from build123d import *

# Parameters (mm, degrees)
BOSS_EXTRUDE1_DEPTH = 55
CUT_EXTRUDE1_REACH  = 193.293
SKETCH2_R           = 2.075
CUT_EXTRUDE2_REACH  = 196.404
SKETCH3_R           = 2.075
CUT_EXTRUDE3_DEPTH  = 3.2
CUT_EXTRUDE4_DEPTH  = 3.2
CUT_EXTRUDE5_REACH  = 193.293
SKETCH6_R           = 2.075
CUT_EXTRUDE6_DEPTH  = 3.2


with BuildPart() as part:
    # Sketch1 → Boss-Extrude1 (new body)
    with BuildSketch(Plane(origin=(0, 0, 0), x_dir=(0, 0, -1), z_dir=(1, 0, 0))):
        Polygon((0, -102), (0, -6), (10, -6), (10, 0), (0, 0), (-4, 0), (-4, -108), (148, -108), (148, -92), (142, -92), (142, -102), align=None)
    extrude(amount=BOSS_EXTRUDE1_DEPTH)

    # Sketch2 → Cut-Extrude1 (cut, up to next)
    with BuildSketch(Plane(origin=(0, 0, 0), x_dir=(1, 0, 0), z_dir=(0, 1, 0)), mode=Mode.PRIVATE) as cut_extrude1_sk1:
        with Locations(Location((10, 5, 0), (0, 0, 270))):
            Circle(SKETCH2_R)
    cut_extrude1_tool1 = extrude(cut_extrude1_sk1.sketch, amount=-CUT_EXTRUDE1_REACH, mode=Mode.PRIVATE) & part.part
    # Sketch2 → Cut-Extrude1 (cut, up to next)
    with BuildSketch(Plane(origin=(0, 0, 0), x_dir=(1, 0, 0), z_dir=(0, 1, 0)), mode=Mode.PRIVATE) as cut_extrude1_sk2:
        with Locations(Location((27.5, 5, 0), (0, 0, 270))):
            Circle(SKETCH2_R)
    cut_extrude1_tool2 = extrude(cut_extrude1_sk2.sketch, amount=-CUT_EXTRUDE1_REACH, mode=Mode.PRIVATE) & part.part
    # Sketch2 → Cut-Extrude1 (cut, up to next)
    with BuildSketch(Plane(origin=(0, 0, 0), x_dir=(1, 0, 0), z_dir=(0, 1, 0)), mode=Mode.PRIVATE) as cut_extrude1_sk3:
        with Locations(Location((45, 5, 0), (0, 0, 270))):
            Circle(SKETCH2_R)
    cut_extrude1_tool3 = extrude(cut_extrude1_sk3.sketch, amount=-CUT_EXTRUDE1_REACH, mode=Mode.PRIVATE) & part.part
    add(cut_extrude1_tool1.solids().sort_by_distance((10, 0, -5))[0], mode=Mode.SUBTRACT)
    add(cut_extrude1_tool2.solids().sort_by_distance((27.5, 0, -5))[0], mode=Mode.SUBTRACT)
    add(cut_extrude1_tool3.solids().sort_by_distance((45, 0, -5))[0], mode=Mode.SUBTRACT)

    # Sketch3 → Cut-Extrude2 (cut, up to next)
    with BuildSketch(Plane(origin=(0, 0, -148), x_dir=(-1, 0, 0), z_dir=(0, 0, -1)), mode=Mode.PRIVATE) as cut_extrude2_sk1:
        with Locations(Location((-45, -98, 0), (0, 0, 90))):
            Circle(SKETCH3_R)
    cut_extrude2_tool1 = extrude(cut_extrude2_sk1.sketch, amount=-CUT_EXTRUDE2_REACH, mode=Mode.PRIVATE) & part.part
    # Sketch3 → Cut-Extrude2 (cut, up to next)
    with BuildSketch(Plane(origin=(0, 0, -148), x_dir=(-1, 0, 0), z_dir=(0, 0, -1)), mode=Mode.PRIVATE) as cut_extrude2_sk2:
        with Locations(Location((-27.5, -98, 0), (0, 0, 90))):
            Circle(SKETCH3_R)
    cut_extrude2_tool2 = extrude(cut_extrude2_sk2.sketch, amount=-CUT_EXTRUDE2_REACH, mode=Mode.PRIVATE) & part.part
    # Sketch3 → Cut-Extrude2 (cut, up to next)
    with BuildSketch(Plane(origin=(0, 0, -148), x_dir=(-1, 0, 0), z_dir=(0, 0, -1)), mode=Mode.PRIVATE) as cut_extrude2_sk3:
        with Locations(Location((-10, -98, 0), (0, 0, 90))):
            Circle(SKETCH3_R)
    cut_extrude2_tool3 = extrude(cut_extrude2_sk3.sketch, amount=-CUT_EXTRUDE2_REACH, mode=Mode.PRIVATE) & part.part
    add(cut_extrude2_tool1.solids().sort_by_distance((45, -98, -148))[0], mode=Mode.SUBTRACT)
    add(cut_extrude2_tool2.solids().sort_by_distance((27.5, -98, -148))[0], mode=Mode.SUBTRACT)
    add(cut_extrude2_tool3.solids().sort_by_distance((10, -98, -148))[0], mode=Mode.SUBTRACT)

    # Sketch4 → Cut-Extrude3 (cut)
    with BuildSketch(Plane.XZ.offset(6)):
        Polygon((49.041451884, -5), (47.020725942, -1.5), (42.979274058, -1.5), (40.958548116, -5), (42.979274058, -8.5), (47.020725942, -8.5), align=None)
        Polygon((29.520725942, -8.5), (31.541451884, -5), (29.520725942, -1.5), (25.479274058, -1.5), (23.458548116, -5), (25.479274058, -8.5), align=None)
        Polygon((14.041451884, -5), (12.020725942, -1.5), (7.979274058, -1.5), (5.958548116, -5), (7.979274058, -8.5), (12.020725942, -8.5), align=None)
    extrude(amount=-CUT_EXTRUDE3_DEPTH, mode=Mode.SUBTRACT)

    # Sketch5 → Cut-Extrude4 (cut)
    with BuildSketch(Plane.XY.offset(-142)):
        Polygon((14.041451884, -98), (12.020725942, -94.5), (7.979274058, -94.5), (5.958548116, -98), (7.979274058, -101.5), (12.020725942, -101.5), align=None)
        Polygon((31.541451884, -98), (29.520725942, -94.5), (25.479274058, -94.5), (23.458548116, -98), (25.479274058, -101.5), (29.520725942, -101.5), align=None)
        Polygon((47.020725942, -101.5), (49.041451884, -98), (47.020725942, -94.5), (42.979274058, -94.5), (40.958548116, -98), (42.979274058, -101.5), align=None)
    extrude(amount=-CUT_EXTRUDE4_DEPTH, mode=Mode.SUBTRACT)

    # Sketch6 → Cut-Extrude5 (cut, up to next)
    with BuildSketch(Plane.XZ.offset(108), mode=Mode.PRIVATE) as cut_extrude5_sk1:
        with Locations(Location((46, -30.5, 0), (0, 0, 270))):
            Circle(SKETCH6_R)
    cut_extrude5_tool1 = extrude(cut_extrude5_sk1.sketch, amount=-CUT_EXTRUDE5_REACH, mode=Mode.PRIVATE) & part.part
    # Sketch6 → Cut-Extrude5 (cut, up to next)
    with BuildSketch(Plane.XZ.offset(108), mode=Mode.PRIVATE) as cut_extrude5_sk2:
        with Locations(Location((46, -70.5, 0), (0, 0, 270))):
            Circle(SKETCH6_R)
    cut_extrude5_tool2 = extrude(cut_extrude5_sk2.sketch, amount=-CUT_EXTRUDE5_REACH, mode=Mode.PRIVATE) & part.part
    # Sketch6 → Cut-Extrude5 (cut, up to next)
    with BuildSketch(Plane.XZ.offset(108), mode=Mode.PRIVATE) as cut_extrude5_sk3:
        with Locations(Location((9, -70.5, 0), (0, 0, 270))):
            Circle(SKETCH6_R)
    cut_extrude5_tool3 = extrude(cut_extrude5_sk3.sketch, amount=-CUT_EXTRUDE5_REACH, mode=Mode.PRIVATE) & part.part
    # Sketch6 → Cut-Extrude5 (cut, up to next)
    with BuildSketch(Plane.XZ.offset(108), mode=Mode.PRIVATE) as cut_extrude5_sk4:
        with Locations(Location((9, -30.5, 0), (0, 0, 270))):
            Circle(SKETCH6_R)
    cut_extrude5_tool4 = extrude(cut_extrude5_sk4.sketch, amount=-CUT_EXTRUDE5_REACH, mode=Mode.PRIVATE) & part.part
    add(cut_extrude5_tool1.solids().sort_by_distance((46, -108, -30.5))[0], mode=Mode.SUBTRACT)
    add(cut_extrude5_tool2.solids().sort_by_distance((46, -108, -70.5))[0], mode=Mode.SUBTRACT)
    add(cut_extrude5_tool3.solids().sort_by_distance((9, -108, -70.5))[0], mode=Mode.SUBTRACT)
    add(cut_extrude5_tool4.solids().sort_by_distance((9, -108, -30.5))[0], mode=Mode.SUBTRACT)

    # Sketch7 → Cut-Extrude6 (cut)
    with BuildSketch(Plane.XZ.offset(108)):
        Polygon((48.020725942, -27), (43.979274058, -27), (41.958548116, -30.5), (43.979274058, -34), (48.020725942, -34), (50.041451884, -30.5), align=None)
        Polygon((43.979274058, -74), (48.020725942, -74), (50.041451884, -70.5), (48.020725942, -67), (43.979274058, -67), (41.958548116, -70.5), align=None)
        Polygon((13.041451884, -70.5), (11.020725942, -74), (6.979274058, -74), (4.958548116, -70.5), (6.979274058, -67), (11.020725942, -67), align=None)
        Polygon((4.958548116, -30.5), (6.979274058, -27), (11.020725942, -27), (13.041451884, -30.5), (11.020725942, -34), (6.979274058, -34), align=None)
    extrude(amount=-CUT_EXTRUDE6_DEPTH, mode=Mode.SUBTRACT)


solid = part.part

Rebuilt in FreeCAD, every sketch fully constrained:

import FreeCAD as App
import Part
import Sketcher
from FreeCAD import Vector
Q = App.Units.Quantity


def add_polygon(sketch, points):
    """Adds a closed chain of lines whose ends are joined by coincident constraints."""
    first, n = sketch.GeometryCount, len(points)
    for a, b in zip(points, points[1:] + points[:1]):
        sketch.addGeometry(Part.LineSegment(App.Vector(*a, 0), App.Vector(*b, 0)), False)
    for i in range(n):
        sketch.addConstraint(Sketcher.Constraint("Coincident", first + i, 2, first + (i + 1) % n, 1))

doc = App.newDocument("Part")
params = doc.addObject("Spreadsheet::Sheet", "Params")
for row, (alias, value) in enumerate([
    ("sketch1_width", "96 mm"),
    ("sketch1_width2", "6 mm"),
    ("sketch1_width3", "108 mm"),
    ("sketch1_width4", "16 mm"),
    ("sketch1_height", "14 mm"),
    ("pad1_length", "55 mm"),
    ("sketch2_diameter", "4.15 mm"),
    ("sketch3_diameter", "4.15 mm"),
    ("sketch4_diameter", "4.15 mm"),
    ("sketch5_diameter", "4.15 mm"),
    ("sketch6_diameter", "4.15 mm"),
    ("sketch7_diameter", "4.15 mm"),
    ("pocket7_length", "3.2 mm"),
    ("pocket8_length", "3.2 mm"),
    ("sketch10_diameter", "4.15 mm"),
    ("sketch11_diameter", "4.15 mm"),
    ("sketch12_diameter", "4.15 mm"),
    ("sketch13_diameter", "4.15 mm"),
    ("pocket13_length", "3.2 mm"),
], start=1):
    params.set(f"A{row}", alias)
    params.set(f"B{row}", "=" + value)
    params.setAlias(f"B{row}", alias)

body = doc.addObject("PartDesign::Body", "Body")

sketch1 = body.newObject("Sketcher::SketchObject", "Sketch")
sketch1.AttachmentSupport = (doc.getObject("YZ_Plane"), [""])
sketch1.MapMode = "FlatFace"
add_polygon(sketch1, [(-102, 0), (-6, 0), (-6, -10), (0, -10), (0, 4), (-108, 4), (-108, -148), (-92, -148), (-92, -142), (-102, -142)])
sketch1.addConstraint([
    Sketcher.Constraint("Horizontal", 0),
    Sketcher.Constraint("Vertical", 1),
    Sketcher.Constraint("Horizontal", 2),
    Sketcher.Constraint("Vertical", 3),
    Sketcher.Constraint("Horizontal", 4),
    Sketcher.Constraint("Vertical", 5),
    Sketcher.Constraint("Horizontal", 6),
    Sketcher.Constraint("Vertical", 7),
    Sketcher.Constraint("Horizontal", 8),
    Sketcher.Constraint("Vertical", 9),
    Sketcher.Constraint("PointOnObject", 0, 2, -1),
    Sketcher.Constraint("PointOnObject", 2, 2, -2),
    Sketcher.Constraint("Equal", 8, 1),
    Sketcher.Constraint("Equal", 2, 7),
    Sketcher.Constraint("DistanceX", 0, 1, 0, 2, 96.0),
    Sketcher.Constraint("DistanceX", 2, 1, 2, 2, 6.0),
    Sketcher.Constraint("DistanceX", 4, 2, 4, 1, 108.0),
    Sketcher.Constraint("DistanceX", 6, 1, 6, 2, 16.0),
    Sketcher.Constraint("DistanceY", 3, 1, 3, 2, 14.0),
    Sketcher.Constraint("DistanceY", 5, 2, 5, 1, 152.0),
])
sketch1.setExpression("Constraints[24]", "Params.sketch1_width")
sketch1.setExpression("Constraints[25]", "Params.sketch1_width2")
sketch1.setExpression("Constraints[26]", "Params.sketch1_width3")
sketch1.setExpression("Constraints[27]", "Params.sketch1_width4")
sketch1.setExpression("Constraints[28]", "Params.sketch1_height")
pad1 = body.newObject("PartDesign::Pad", "Pad")
pad1.Profile = sketch1
pad1.setExpression("Length", "Params.pad1_length")

sketch2 = body.newObject("Sketcher::SketchObject", "Sketch001")
sketch2.AttachmentSupport = (doc.getObject("XZ_Plane"), [""])
sketch2.MapMode = "FlatFace"
sketch2.addGeometry(Part.Circle(Vector(10, -5, 0), Vector(0, 0, 1), 2.1), False)
sketch2.addConstraint([
    Sketcher.Constraint("Diameter", 0, 4.15),
    Sketcher.Constraint("DistanceX", -1, 1, 0, 3, 10.0),
    Sketcher.Constraint("DistanceY", 0, 3, -1, 1, 5.0),
])
sketch2.setExpression("Constraints[0]", "Params.sketch2_diameter")
pocket1 = body.newObject("PartDesign::Pocket", "Pocket")
pocket1.Profile = sketch2
pocket1.Type = "UpToFirst"
pocket1.Reversed = True

sketch3 = body.newObject("Sketcher::SketchObject", "Sketch002")
sketch3.AttachmentSupport = (doc.getObject("XZ_Plane"), [""])
sketch3.MapMode = "FlatFace"
sketch3.addGeometry(Part.Circle(Vector(27.5, -5, 0), Vector(0, 0, 1), 2.1), False)
sketch3.addConstraint([
    Sketcher.Constraint("Diameter", 0, 4.15),
    Sketcher.Constraint("DistanceY", 0, 3, -1, 1, 5.0),
    Sketcher.Constraint("DistanceX", -1, 1, 0, 3, 27.5),
])
sketch3.setExpression("Constraints[0]", "Params.sketch3_diameter")
pocket2 = body.newObject("PartDesign::Pocket", "Pocket001")
pocket2.Profile = sketch3
pocket2.Type = "UpToFirst"
pocket2.Reversed = True

sketch4 = body.newObject("Sketcher::SketchObject", "Sketch003")
sketch4.AttachmentSupport = (doc.getObject("XZ_Plane"), [""])
sketch4.MapMode = "FlatFace"
sketch4.addGeometry(Part.Circle(Vector(45, -5, 0), Vector(0, 0, 1), 2.1), False)
sketch4.addConstraint([
    Sketcher.Constraint("Diameter", 0, 4.15),
    Sketcher.Constraint("DistanceX", -1, 1, 0, 3, 45.0),
    Sketcher.Constraint("DistanceY", 0, 3, -1, 1, 5.0),
])
sketch4.setExpression("Constraints[0]", "Params.sketch4_diameter")
pocket3 = body.newObject("PartDesign::Pocket", "Pocket002")
pocket3.Profile = sketch4
pocket3.Type = "UpToFirst"
pocket3.Reversed = True

sketch5 = body.newObject("Sketcher::SketchObject", "Sketch004")
sketch5.AttachmentSupport = (doc.getObject("XY_Plane"), [""])
sketch5.MapMode = "FlatFace"
sketch5.AttachmentOffset = App.Placement(Vector(0, 0, -148), App.Rotation())
sketch5.addGeometry(Part.Circle(Vector(45, -98, 0), Vector(0, 0, 1), 2.1), False)
sketch5.addConstraint([
    Sketcher.Constraint("Diameter", 0, 4.15),
    Sketcher.Constraint("DistanceX", -1, 1, 0, 3, 45.0),
    Sketcher.Constraint("DistanceY", 0, 3, -1, 1, 98.0),
])
sketch5.setExpression("Constraints[0]", "Params.sketch5_diameter")
pocket4 = body.newObject("PartDesign::Pocket", "Pocket003")
pocket4.Profile = sketch5
pocket4.Type = "UpToFirst"
pocket4.Reversed = True

sketch6 = body.newObject("Sketcher::SketchObject", "Sketch005")
sketch6.AttachmentSupport = (doc.getObject("XY_Plane"), [""])
sketch6.MapMode = "FlatFace"
sketch6.AttachmentOffset = App.Placement(Vector(0, 0, -148), App.Rotation())
sketch6.addGeometry(Part.Circle(Vector(27.5, -98, 0), Vector(0, 0, 1), 2.1), False)
sketch6.addConstraint([
    Sketcher.Constraint("Diameter", 0, 4.15),
    Sketcher.Constraint("DistanceY", 0, 3, -1, 1, 98.0),
    Sketcher.Constraint("DistanceX", -1, 1, 0, 3, 27.5),
])
sketch6.setExpression("Constraints[0]", "Params.sketch6_diameter")
pocket5 = body.newObject("PartDesign::Pocket", "Pocket004")
pocket5.Profile = sketch6
pocket5.Type = "UpToFirst"
pocket5.Reversed = True

sketch7 = body.newObject("Sketcher::SketchObject", "Sketch006")
sketch7.AttachmentSupport = (doc.getObject("XY_Plane"), [""])
sketch7.MapMode = "FlatFace"
sketch7.AttachmentOffset = App.Placement(Vector(0, 0, -148), App.Rotation())
sketch7.addGeometry(Part.Circle(Vector(10, -98, 0), Vector(0, 0, 1), 2.1), False)
sketch7.addConstraint([
    Sketcher.Constraint("Diameter", 0, 4.15),
    Sketcher.Constraint("DistanceX", -1, 1, 0, 3, 10.0),
    Sketcher.Constraint("DistanceY", 0, 3, -1, 1, 98.0),
])
sketch7.setExpression("Constraints[0]", "Params.sketch7_diameter")
pocket6 = body.newObject("PartDesign::Pocket", "Pocket005")
pocket6.Profile = sketch7
pocket6.Type = "UpToFirst"
pocket6.Reversed = True

sketch8 = body.newObject("Sketcher::SketchObject", "Sketch007")
sketch8.AttachmentSupport = (doc.getObject("XZ_Plane"), [""])
sketch8.MapMode = "FlatFace"
sketch8.AttachmentOffset = App.Placement(Vector(0, 0, 6), App.Rotation())
add_polygon(sketch8, [(49, -5), (47, -1.5), (43, -1.5), (41, -5), (43, -8.5), (47, -8.5)])
add_polygon(sketch8, [(29.5, -8.5), (31.5, -5), (29.5, -1.5), (25.5, -1.5), (23.5, -5), (25.5, -8.5)])
add_polygon(sketch8, [(14, -5), (12, -1.5), (8, -1.5), (6, -5), (8, -8.5), (12, -8.5)])
sketch8.addConstraint([
    Sketcher.Constraint("Horizontal", 1),
    Sketcher.Constraint("Horizontal", 4),
    Sketcher.Constraint("Horizontal", 8),
    Sketcher.Constraint("Horizontal", 11),
    Sketcher.Constraint("Horizontal", 13),
    Sketcher.Constraint("Horizontal", 16),
    Sketcher.Constraint("Parallel", 0, 3),
    Sketcher.Constraint("Parallel", 2, 5),
    Sketcher.Constraint("Parallel", 5, 6),
    Sketcher.Constraint("Parallel", 3, 7),
    Sketcher.Constraint("Parallel", 6, 9),
    Sketcher.Constraint("Parallel", 7, 10),
    Sketcher.Constraint("Parallel", 10, 12),
    Sketcher.Constraint("Parallel", 9, 14),
    Sketcher.Constraint("Parallel", 12, 15),
    Sketcher.Constraint("Parallel", 14, 17),
    Sketcher.Constraint("Horizontal", 2, 2, 5, 2),
    Sketcher.Constraint("Horizontal", 5, 2, 6, 2),
    Sketcher.Constraint("Horizontal", 1, 2, 7, 2),
    Sketcher.Constraint("Horizontal", 6, 2, 9, 2),
    Sketcher.Constraint("Horizontal", 4, 2, 10, 2),
    Sketcher.Constraint("Horizontal", 8, 2, 12, 2),
    Sketcher.Constraint("Horizontal", 9, 2, 14, 2),
    Sketcher.Constraint("Horizontal", 11, 2, 15, 2),
    Sketcher.Constraint("Horizontal", 14, 2, 17, 2),
    Sketcher.Constraint("Vertical", 1, 2, 3, 2),
    Sketcher.Constraint("Vertical", 0, 2, 4, 2),
    Sketcher.Constraint("Equal", 4, 8),
    Sketcher.Constraint("Equal", 11, 13),
    Sketcher.Constraint("Angle", 0, Q("120 deg")),
    Sketcher.Constraint("DistanceY", 2, 2, -1, 1, 5.0),
    Sketcher.Constraint("DistanceY", 3, 2, 1, 2, 7.0),
    Sketcher.Constraint("DistanceX", 7, 2, 0, 2, 17.5),
    Sketcher.Constraint("DistanceX", 12, 2, 7, 2, 17.5),
    Sketcher.Constraint("DistanceX", 1, 2, 1, 1, 4.041452),
    Sketcher.Constraint("DistanceX", -1, 1, 2, 2, 40.958548),
])
pocket7 = body.newObject("PartDesign::Pocket", "Pocket006")
pocket7.Profile = sketch8
pocket7.setExpression("Length", "Params.pocket7_length")

sketch9 = body.newObject("Sketcher::SketchObject", "Sketch008")
sketch9.AttachmentSupport = (doc.getObject("XY_Plane"), [""])
sketch9.MapMode = "FlatFace"
sketch9.AttachmentOffset = App.Placement(Vector(0, 0, -142), App.Rotation())
add_polygon(sketch9, [(14, -98), (12, -94.5), (8, -94.5), (6, -98), (8, -101.5), (12, -101.5)])
add_polygon(sketch9, [(31.5, -98), (29.5, -94.5), (25.5, -94.5), (23.5, -98), (25.5, -101.5), (29.5, -101.5)])
add_polygon(sketch9, [(47, -101.5), (49, -98), (47, -94.5), (43, -94.5), (41, -98), (43, -101.5)])
sketch9.addConstraint([
    Sketcher.Constraint("Horizontal", 1),
    Sketcher.Constraint("Horizontal", 4),
    Sketcher.Constraint("Horizontal", 7),
    Sketcher.Constraint("Horizontal", 10),
    Sketcher.Constraint("Horizontal", 14),
    Sketcher.Constraint("Horizontal", 17),
    Sketcher.Constraint("Parallel", 0, 3),
    Sketcher.Constraint("Parallel", 2, 5),
    Sketcher.Constraint("Parallel", 3, 6),
    Sketcher.Constraint("Parallel", 5, 8),
    Sketcher.Constraint("Parallel", 6, 9),
    Sketcher.Constraint("Parallel", 8, 11),
    Sketcher.Constraint("Parallel", 11, 12),
    Sketcher.Constraint("Parallel", 9, 13),
    Sketcher.Constraint("Parallel", 12, 15),
    Sketcher.Constraint("Parallel", 13, 16),
    Sketcher.Constraint("Horizontal", 2, 2, 5, 2),
    Sketcher.Constraint("Horizontal", 1, 2, 6, 2),
    Sketcher.Constraint("Horizontal", 5, 2, 8, 2),
    Sketcher.Constraint("Horizontal", 4, 2, 9, 2),
    Sketcher.Constraint("Horizontal", 8, 2, 11, 2),
    Sketcher.Constraint("Horizontal", 11, 2, 12, 2),
    Sketcher.Constraint("Horizontal", 7, 2, 13, 2),
    Sketcher.Constraint("Horizontal", 12, 2, 15, 2),
    Sketcher.Constraint("Horizontal", 10, 2, 16, 2),
    Sketcher.Constraint("Vertical", 1, 2, 3, 2),
    Sketcher.Constraint("Vertical", 0, 2, 4, 2),
    Sketcher.Constraint("Equal", 4, 7),
    Sketcher.Constraint("Equal", 10, 14),
    Sketcher.Constraint("Angle", 0, Q("120 deg")),
    Sketcher.Constraint("DistanceY", 2, 2, -1, 1, 98.0),
    Sketcher.Constraint("DistanceY", 3, 2, 1, 2, 7.0),
    Sketcher.Constraint("DistanceX", 0, 2, 6, 2, 17.5),
    Sketcher.Constraint("DistanceX", 11, 2, 12, 2, 17.5),
    Sketcher.Constraint("DistanceX", 1, 2, 1, 1, 4.041452),
    Sketcher.Constraint("DistanceX", -1, 1, 2, 2, 5.958548),
])
pocket8 = body.newObject("PartDesign::Pocket", "Pocket007")
pocket8.Profile = sketch9
pocket8.setExpression("Length", "Params.pocket8_length")

sketch10 = body.newObject("Sketcher::SketchObject", "Sketch009")
sketch10.AttachmentSupport = (doc.getObject("XZ_Plane"), [""])
sketch10.MapMode = "FlatFace"
sketch10.AttachmentOffset = App.Placement(Vector(0, 0, 108), App.Rotation())
sketch10.addGeometry(Part.Circle(Vector(46, -30.5, 0), Vector(0, 0, 1), 2.1), False)
sketch10.addConstraint([
    Sketcher.Constraint("Diameter", 0, 4.15),
    Sketcher.Constraint("DistanceX", -1, 1, 0, 3, 46.0),
    Sketcher.Constraint("DistanceY", 0, 3, -1, 1, 30.5),
])
sketch10.setExpression("Constraints[0]", "Params.sketch10_diameter")
pocket9 = body.newObject("PartDesign::Pocket", "Pocket008")
pocket9.Profile = sketch10
pocket9.Type = "UpToFirst"

sketch11 = body.newObject("Sketcher::SketchObject", "Sketch010")
sketch11.AttachmentSupport = (doc.getObject("XZ_Plane"), [""])
sketch11.MapMode = "FlatFace"
sketch11.AttachmentOffset = App.Placement(Vector(0, 0, 108), App.Rotation())
sketch11.addGeometry(Part.Circle(Vector(46, -70.5, 0), Vector(0, 0, 1), 2.1), False)
sketch11.addConstraint([
    Sketcher.Constraint("Diameter", 0, 4.15),
    Sketcher.Constraint("DistanceX", -1, 1, 0, 3, 46.0),
    Sketcher.Constraint("DistanceY", 0, 3, -1, 1, 70.5),
])
sketch11.setExpression("Constraints[0]", "Params.sketch11_diameter")
pocket10 = body.newObject("PartDesign::Pocket", "Pocket009")
pocket10.Profile = sketch11
pocket10.Type = "UpToFirst"

sketch12 = body.newObject("Sketcher::SketchObject", "Sketch011")
sketch12.AttachmentSupport = (doc.getObject("XZ_Plane"), [""])
sketch12.MapMode = "FlatFace"
sketch12.AttachmentOffset = App.Placement(Vector(0, 0, 108), App.Rotation())
sketch12.addGeometry(Part.Circle(Vector(9, -70.5, 0), Vector(0, 0, 1), 2.1), False)
sketch12.addConstraint([
    Sketcher.Constraint("Diameter", 0, 4.15),
    Sketcher.Constraint("DistanceX", -1, 1, 0, 3, 9.0),
    Sketcher.Constraint("DistanceY", 0, 3, -1, 1, 70.5),
])
sketch12.setExpression("Constraints[0]", "Params.sketch12_diameter")
pocket11 = body.newObject("PartDesign::Pocket", "Pocket010")
pocket11.Profile = sketch12
pocket11.Type = "UpToFirst"

sketch13 = body.newObject("Sketcher::SketchObject", "Sketch012")
sketch13.AttachmentSupport = (doc.getObject("XZ_Plane"), [""])
sketch13.MapMode = "FlatFace"
sketch13.AttachmentOffset = App.Placement(Vector(0, 0, 108), App.Rotation())
sketch13.addGeometry(Part.Circle(Vector(9, -30.5, 0), Vector(0, 0, 1), 2.1), False)
sketch13.addConstraint([
    Sketcher.Constraint("Diameter", 0, 4.15),
    Sketcher.Constraint("DistanceX", -1, 1, 0, 3, 9.0),
    Sketcher.Constraint("DistanceY", 0, 3, -1, 1, 30.5),
])
sketch13.setExpression("Constraints[0]", "Params.sketch13_diameter")
pocket12 = body.newObject("PartDesign::Pocket", "Pocket011")
pocket12.Profile = sketch13
pocket12.Type = "UpToFirst"

sketch14 = body.newObject("Sketcher::SketchObject", "Sketch013")
sketch14.AttachmentSupport = (doc.getObject("XZ_Plane"), [""])
sketch14.MapMode = "FlatFace"
sketch14.AttachmentOffset = App.Placement(Vector(0, 0, 108), App.Rotation())
add_polygon(sketch14, [(48, -27), (44, -27), (42, -30.5), (44, -34), (48, -34), (50, -30.5)])
add_polygon(sketch14, [(44, -74), (48, -74), (50, -70.5), (48, -67), (44, -67), (42, -70.5)])
add_polygon(sketch14, [(11, -74), (13, -70.5), (11, -67), (7, -67), (5, -70.5), (7, -74)])
add_polygon(sketch14, [(7, -27), (5, -30.5), (7, -34), (11, -34), (13, -30.5), (11, -27)])
sketch14.addConstraint([
    Sketcher.Constraint("Horizontal", 0),
    Sketcher.Constraint("Horizontal", 3),
    Sketcher.Constraint("Horizontal", 6),
    Sketcher.Constraint("Horizontal", 9),
    Sketcher.Constraint("Horizontal", 14),
    Sketcher.Constraint("Horizontal", 17),
    Sketcher.Constraint("Horizontal", 20),
    Sketcher.Constraint("Horizontal", 23),
    Sketcher.Constraint("Parallel", 1, 4),
    Sketcher.Constraint("Parallel", 2, 5),
    Sketcher.Constraint("Parallel", 4, 7),
    Sketcher.Constraint("Parallel", 5, 8),
    Sketcher.Constraint("Parallel", 7, 10),
    Sketcher.Constraint("Parallel", 8, 11),
    Sketcher.Constraint("Parallel", 10, 12),
    Sketcher.Constraint("Parallel", 11, 13),
    Sketcher.Constraint("Parallel", 12, 15),
    Sketcher.Constraint("Parallel", 13, 16),
    Sketcher.Constraint("Parallel", 15, 18),
    Sketcher.Constraint("Parallel", 16, 19),
    Sketcher.Constraint("Parallel", 18, 21),
    Sketcher.Constraint("Parallel", 19, 22),
    Sketcher.Constraint("Horizontal", 1, 2, 4, 2),
    Sketcher.Constraint("Horizontal", 7, 2, 10, 2),
    Sketcher.Constraint("Horizontal", 10, 2, 12, 2),
    Sketcher.Constraint("Horizontal", 9, 2, 13, 2),
    Sketcher.Constraint("Horizontal", 12, 2, 15, 2),
    Sketcher.Constraint("Horizontal", 11, 2, 16, 2),
    Sketcher.Constraint("Horizontal", 4, 2, 18, 2),
    Sketcher.Constraint("Horizontal", 3, 2, 19, 2),
    Sketcher.Constraint("Horizontal", 18, 2, 21, 2),
    Sketcher.Constraint("Horizontal", 5, 2, 22, 2),
    Sketcher.Constraint("Vertical", 0, 2, 2, 2),
    Sketcher.Constraint("Vertical", 3, 2, 5, 2),
    Sketcher.Constraint("Vertical", 5, 2, 6, 2),
    Sketcher.Constraint("Vertical", 4, 2, 7, 2),
    Sketcher.Constraint("Vertical", 6, 2, 8, 2),
    Sketcher.Constraint("Vertical", 2, 2, 9, 2),
    Sketcher.Constraint("Vertical", 15, 2, 18, 2),
    Sketcher.Constraint("Vertical", 17, 2, 20, 2),
    Sketcher.Constraint("Equal", 9, 14),
    Sketcher.Constraint("Angle", 1, Q("-120 deg")),
    Sketcher.Constraint("DistanceY", 0, 2, -1, 1, 27.0),
    Sketcher.Constraint("DistanceY", 2, 2, -1, 1, 34.0),
    Sketcher.Constraint("DistanceY", 6, 2, -1, 1, 74.0),
    Sketcher.Constraint("DistanceX", 13, 2, 8, 2, 37.0),
    Sketcher.Constraint("DistanceX", 0, 2, 0, 1, 4.041452),
    Sketcher.Constraint("DistanceX", -1, 1, 1, 2, 41.958548),
])
pocket13 = body.newObject("PartDesign::Pocket", "Pocket012")
pocket13.Profile = sketch14
pocket13.setExpression("Length", "Params.pocket13_length")

doc.recompute()
